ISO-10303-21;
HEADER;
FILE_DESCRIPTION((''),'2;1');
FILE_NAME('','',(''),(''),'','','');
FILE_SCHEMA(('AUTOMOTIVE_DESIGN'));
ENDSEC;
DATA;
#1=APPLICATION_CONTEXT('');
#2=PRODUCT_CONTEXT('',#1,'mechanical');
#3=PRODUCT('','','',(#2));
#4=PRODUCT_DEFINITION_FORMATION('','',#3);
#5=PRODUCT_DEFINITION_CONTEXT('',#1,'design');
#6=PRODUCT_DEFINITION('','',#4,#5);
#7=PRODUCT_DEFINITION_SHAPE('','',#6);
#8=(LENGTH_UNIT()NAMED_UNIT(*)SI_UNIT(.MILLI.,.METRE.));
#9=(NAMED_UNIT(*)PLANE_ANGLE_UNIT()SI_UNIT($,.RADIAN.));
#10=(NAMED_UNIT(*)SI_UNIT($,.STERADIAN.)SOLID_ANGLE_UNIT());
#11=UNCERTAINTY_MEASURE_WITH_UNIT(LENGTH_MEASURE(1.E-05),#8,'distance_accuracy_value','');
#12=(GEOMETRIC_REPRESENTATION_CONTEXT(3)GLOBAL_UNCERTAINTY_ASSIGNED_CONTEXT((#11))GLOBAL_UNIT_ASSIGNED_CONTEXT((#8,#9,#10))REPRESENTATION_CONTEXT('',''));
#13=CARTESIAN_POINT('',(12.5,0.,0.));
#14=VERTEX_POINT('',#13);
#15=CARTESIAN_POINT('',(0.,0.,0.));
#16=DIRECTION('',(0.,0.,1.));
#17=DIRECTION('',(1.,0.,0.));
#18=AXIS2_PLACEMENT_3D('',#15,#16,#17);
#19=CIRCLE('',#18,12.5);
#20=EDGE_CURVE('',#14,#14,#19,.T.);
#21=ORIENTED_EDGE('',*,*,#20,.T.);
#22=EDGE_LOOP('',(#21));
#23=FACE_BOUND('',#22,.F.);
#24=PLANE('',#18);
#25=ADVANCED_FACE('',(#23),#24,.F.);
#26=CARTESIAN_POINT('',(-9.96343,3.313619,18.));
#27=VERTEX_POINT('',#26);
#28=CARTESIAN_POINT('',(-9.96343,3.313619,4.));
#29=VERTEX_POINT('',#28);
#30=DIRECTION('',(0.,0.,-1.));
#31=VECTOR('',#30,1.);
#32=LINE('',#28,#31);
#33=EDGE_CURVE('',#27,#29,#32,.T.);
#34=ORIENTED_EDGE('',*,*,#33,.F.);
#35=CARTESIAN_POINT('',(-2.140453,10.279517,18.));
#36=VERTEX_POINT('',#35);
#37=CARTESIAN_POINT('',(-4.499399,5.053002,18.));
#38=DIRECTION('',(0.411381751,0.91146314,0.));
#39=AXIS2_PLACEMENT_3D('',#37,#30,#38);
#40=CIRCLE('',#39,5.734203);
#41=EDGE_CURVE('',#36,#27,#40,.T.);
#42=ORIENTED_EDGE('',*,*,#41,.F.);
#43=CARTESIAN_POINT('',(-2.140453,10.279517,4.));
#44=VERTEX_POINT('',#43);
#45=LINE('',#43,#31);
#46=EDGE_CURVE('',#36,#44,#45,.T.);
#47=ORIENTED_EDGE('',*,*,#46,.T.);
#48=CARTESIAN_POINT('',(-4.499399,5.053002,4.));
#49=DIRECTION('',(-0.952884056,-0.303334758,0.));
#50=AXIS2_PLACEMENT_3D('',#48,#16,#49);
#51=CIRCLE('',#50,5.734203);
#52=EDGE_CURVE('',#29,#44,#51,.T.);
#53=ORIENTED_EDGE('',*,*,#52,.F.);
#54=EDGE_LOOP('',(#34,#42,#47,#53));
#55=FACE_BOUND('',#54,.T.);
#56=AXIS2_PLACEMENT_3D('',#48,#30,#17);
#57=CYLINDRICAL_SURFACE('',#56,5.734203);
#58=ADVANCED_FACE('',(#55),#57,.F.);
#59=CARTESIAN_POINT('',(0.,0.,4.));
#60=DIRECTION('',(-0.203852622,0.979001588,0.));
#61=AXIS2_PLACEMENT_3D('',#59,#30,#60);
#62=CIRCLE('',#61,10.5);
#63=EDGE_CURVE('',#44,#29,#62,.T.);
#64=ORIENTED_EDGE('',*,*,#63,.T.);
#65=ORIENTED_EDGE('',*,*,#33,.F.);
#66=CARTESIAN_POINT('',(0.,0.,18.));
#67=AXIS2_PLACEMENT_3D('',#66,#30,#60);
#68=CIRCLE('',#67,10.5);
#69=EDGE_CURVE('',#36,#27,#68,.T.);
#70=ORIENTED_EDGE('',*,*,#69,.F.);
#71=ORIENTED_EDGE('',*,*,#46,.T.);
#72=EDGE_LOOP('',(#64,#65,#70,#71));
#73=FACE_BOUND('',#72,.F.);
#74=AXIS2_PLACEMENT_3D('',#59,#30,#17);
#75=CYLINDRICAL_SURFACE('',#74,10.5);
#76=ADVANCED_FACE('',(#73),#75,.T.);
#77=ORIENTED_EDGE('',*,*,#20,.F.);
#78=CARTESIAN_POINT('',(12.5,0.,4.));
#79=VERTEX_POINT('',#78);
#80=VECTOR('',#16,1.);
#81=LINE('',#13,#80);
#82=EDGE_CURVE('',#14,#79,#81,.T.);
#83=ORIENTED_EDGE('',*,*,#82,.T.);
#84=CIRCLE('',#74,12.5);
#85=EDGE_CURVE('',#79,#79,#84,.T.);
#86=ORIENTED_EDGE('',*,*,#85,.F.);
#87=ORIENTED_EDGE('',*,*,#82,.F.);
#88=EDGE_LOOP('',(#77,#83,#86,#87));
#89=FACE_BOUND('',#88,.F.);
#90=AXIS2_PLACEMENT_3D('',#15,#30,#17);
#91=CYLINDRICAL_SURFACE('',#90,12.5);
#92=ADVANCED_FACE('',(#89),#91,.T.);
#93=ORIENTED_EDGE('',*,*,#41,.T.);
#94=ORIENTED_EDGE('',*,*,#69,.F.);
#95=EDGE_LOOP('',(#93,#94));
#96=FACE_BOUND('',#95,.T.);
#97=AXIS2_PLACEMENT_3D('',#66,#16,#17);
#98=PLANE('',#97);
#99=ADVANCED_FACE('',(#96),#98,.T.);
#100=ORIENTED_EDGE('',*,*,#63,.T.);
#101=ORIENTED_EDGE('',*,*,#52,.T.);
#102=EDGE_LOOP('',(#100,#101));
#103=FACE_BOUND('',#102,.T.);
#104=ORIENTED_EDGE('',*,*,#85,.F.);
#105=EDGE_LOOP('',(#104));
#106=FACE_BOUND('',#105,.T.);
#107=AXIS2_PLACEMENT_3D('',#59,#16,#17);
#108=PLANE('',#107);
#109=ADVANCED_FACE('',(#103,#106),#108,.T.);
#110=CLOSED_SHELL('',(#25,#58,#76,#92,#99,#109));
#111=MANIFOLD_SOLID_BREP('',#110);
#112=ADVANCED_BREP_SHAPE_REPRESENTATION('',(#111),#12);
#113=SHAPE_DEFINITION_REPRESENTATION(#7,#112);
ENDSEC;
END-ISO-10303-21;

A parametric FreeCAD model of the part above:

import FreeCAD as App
import Part
import Sketcher
Q = App.Units.Quantity

doc = App.newDocument("Part")
body = doc.addObject("PartDesign::Body", "Body")

sketch1 = body.newObject("Sketcher::SketchObject", "Sketch")
sketch1.AttachmentSupport = (doc.getObject("XY_Plane"), [""])
sketch1.MapMode = "FlatFace"
sketch1.addGeometry(Part.Circle(App.Vector(0, 0, 0), App.Vector(0, 0, 1), 12), False)
sketch1.addConstraint([
    Sketcher.Constraint("Coincident", 0, 3, -1, 1),
    Sketcher.Constraint("Diameter", 0, Q("25 mm")),
])
pad1 = body.newObject("PartDesign::Pad", "Pad")
pad1.Profile = sketch1
pad1.Length = 4

sketch2 = body.newObject("Sketcher::SketchObject", "Sketch001")
sketch2.AttachmentSupport = (doc.getObject("XY_Plane"), [""])
sketch2.MapMode = "FlatFace"
sketch2.AttachmentOffset = App.Placement(App.Vector(0, 0, 4), App.Rotation())
sketch2.addGeometry(Part.Circle(App.Vector(0, 0, 0), App.Vector(0, 0, 1), 10), False)
sketch2.addConstraint([
    Sketcher.Constraint("Coincident", 0, 3, -1, 1),
    Sketcher.Constraint("Diameter", 0, Q("21 mm")),
])
pad2 = body.newObject("PartDesign::Pad", "Pad001")
pad2.Profile = sketch2
pad2.Length = 14

sketch3 = body.newObject("Sketcher::SketchObject", "Sketch002")
sketch3.AttachmentSupport = (doc.getObject("XY_Plane"), [""])
sketch3.MapMode = "FlatFace"
sketch3.AttachmentOffset = App.Placement(App.Vector(0, 0, 4), App.Rotation())
sketch3.addGeometry(Part.Circle(App.Vector(-4, 5, 0), App.Vector(0, 0, 1), 6), False)
sketch3.addConstraint([
    Sketcher.Constraint("Diameter", 0, Q("11.468406 mm")),
    Sketcher.Constraint("DistanceX", 0, 3, -1, 1, Q("4.499399 mm")),
    Sketcher.Constraint("DistanceY", -1, 1, 0, 3, Q("5.053002 mm")),
])
pocket1 = body.newObject("PartDesign::Pocket", "Pocket")
pocket1.Profile = sketch3
pocket1.Length = 14
pocket1.Reversed = True

doc.recompute()
